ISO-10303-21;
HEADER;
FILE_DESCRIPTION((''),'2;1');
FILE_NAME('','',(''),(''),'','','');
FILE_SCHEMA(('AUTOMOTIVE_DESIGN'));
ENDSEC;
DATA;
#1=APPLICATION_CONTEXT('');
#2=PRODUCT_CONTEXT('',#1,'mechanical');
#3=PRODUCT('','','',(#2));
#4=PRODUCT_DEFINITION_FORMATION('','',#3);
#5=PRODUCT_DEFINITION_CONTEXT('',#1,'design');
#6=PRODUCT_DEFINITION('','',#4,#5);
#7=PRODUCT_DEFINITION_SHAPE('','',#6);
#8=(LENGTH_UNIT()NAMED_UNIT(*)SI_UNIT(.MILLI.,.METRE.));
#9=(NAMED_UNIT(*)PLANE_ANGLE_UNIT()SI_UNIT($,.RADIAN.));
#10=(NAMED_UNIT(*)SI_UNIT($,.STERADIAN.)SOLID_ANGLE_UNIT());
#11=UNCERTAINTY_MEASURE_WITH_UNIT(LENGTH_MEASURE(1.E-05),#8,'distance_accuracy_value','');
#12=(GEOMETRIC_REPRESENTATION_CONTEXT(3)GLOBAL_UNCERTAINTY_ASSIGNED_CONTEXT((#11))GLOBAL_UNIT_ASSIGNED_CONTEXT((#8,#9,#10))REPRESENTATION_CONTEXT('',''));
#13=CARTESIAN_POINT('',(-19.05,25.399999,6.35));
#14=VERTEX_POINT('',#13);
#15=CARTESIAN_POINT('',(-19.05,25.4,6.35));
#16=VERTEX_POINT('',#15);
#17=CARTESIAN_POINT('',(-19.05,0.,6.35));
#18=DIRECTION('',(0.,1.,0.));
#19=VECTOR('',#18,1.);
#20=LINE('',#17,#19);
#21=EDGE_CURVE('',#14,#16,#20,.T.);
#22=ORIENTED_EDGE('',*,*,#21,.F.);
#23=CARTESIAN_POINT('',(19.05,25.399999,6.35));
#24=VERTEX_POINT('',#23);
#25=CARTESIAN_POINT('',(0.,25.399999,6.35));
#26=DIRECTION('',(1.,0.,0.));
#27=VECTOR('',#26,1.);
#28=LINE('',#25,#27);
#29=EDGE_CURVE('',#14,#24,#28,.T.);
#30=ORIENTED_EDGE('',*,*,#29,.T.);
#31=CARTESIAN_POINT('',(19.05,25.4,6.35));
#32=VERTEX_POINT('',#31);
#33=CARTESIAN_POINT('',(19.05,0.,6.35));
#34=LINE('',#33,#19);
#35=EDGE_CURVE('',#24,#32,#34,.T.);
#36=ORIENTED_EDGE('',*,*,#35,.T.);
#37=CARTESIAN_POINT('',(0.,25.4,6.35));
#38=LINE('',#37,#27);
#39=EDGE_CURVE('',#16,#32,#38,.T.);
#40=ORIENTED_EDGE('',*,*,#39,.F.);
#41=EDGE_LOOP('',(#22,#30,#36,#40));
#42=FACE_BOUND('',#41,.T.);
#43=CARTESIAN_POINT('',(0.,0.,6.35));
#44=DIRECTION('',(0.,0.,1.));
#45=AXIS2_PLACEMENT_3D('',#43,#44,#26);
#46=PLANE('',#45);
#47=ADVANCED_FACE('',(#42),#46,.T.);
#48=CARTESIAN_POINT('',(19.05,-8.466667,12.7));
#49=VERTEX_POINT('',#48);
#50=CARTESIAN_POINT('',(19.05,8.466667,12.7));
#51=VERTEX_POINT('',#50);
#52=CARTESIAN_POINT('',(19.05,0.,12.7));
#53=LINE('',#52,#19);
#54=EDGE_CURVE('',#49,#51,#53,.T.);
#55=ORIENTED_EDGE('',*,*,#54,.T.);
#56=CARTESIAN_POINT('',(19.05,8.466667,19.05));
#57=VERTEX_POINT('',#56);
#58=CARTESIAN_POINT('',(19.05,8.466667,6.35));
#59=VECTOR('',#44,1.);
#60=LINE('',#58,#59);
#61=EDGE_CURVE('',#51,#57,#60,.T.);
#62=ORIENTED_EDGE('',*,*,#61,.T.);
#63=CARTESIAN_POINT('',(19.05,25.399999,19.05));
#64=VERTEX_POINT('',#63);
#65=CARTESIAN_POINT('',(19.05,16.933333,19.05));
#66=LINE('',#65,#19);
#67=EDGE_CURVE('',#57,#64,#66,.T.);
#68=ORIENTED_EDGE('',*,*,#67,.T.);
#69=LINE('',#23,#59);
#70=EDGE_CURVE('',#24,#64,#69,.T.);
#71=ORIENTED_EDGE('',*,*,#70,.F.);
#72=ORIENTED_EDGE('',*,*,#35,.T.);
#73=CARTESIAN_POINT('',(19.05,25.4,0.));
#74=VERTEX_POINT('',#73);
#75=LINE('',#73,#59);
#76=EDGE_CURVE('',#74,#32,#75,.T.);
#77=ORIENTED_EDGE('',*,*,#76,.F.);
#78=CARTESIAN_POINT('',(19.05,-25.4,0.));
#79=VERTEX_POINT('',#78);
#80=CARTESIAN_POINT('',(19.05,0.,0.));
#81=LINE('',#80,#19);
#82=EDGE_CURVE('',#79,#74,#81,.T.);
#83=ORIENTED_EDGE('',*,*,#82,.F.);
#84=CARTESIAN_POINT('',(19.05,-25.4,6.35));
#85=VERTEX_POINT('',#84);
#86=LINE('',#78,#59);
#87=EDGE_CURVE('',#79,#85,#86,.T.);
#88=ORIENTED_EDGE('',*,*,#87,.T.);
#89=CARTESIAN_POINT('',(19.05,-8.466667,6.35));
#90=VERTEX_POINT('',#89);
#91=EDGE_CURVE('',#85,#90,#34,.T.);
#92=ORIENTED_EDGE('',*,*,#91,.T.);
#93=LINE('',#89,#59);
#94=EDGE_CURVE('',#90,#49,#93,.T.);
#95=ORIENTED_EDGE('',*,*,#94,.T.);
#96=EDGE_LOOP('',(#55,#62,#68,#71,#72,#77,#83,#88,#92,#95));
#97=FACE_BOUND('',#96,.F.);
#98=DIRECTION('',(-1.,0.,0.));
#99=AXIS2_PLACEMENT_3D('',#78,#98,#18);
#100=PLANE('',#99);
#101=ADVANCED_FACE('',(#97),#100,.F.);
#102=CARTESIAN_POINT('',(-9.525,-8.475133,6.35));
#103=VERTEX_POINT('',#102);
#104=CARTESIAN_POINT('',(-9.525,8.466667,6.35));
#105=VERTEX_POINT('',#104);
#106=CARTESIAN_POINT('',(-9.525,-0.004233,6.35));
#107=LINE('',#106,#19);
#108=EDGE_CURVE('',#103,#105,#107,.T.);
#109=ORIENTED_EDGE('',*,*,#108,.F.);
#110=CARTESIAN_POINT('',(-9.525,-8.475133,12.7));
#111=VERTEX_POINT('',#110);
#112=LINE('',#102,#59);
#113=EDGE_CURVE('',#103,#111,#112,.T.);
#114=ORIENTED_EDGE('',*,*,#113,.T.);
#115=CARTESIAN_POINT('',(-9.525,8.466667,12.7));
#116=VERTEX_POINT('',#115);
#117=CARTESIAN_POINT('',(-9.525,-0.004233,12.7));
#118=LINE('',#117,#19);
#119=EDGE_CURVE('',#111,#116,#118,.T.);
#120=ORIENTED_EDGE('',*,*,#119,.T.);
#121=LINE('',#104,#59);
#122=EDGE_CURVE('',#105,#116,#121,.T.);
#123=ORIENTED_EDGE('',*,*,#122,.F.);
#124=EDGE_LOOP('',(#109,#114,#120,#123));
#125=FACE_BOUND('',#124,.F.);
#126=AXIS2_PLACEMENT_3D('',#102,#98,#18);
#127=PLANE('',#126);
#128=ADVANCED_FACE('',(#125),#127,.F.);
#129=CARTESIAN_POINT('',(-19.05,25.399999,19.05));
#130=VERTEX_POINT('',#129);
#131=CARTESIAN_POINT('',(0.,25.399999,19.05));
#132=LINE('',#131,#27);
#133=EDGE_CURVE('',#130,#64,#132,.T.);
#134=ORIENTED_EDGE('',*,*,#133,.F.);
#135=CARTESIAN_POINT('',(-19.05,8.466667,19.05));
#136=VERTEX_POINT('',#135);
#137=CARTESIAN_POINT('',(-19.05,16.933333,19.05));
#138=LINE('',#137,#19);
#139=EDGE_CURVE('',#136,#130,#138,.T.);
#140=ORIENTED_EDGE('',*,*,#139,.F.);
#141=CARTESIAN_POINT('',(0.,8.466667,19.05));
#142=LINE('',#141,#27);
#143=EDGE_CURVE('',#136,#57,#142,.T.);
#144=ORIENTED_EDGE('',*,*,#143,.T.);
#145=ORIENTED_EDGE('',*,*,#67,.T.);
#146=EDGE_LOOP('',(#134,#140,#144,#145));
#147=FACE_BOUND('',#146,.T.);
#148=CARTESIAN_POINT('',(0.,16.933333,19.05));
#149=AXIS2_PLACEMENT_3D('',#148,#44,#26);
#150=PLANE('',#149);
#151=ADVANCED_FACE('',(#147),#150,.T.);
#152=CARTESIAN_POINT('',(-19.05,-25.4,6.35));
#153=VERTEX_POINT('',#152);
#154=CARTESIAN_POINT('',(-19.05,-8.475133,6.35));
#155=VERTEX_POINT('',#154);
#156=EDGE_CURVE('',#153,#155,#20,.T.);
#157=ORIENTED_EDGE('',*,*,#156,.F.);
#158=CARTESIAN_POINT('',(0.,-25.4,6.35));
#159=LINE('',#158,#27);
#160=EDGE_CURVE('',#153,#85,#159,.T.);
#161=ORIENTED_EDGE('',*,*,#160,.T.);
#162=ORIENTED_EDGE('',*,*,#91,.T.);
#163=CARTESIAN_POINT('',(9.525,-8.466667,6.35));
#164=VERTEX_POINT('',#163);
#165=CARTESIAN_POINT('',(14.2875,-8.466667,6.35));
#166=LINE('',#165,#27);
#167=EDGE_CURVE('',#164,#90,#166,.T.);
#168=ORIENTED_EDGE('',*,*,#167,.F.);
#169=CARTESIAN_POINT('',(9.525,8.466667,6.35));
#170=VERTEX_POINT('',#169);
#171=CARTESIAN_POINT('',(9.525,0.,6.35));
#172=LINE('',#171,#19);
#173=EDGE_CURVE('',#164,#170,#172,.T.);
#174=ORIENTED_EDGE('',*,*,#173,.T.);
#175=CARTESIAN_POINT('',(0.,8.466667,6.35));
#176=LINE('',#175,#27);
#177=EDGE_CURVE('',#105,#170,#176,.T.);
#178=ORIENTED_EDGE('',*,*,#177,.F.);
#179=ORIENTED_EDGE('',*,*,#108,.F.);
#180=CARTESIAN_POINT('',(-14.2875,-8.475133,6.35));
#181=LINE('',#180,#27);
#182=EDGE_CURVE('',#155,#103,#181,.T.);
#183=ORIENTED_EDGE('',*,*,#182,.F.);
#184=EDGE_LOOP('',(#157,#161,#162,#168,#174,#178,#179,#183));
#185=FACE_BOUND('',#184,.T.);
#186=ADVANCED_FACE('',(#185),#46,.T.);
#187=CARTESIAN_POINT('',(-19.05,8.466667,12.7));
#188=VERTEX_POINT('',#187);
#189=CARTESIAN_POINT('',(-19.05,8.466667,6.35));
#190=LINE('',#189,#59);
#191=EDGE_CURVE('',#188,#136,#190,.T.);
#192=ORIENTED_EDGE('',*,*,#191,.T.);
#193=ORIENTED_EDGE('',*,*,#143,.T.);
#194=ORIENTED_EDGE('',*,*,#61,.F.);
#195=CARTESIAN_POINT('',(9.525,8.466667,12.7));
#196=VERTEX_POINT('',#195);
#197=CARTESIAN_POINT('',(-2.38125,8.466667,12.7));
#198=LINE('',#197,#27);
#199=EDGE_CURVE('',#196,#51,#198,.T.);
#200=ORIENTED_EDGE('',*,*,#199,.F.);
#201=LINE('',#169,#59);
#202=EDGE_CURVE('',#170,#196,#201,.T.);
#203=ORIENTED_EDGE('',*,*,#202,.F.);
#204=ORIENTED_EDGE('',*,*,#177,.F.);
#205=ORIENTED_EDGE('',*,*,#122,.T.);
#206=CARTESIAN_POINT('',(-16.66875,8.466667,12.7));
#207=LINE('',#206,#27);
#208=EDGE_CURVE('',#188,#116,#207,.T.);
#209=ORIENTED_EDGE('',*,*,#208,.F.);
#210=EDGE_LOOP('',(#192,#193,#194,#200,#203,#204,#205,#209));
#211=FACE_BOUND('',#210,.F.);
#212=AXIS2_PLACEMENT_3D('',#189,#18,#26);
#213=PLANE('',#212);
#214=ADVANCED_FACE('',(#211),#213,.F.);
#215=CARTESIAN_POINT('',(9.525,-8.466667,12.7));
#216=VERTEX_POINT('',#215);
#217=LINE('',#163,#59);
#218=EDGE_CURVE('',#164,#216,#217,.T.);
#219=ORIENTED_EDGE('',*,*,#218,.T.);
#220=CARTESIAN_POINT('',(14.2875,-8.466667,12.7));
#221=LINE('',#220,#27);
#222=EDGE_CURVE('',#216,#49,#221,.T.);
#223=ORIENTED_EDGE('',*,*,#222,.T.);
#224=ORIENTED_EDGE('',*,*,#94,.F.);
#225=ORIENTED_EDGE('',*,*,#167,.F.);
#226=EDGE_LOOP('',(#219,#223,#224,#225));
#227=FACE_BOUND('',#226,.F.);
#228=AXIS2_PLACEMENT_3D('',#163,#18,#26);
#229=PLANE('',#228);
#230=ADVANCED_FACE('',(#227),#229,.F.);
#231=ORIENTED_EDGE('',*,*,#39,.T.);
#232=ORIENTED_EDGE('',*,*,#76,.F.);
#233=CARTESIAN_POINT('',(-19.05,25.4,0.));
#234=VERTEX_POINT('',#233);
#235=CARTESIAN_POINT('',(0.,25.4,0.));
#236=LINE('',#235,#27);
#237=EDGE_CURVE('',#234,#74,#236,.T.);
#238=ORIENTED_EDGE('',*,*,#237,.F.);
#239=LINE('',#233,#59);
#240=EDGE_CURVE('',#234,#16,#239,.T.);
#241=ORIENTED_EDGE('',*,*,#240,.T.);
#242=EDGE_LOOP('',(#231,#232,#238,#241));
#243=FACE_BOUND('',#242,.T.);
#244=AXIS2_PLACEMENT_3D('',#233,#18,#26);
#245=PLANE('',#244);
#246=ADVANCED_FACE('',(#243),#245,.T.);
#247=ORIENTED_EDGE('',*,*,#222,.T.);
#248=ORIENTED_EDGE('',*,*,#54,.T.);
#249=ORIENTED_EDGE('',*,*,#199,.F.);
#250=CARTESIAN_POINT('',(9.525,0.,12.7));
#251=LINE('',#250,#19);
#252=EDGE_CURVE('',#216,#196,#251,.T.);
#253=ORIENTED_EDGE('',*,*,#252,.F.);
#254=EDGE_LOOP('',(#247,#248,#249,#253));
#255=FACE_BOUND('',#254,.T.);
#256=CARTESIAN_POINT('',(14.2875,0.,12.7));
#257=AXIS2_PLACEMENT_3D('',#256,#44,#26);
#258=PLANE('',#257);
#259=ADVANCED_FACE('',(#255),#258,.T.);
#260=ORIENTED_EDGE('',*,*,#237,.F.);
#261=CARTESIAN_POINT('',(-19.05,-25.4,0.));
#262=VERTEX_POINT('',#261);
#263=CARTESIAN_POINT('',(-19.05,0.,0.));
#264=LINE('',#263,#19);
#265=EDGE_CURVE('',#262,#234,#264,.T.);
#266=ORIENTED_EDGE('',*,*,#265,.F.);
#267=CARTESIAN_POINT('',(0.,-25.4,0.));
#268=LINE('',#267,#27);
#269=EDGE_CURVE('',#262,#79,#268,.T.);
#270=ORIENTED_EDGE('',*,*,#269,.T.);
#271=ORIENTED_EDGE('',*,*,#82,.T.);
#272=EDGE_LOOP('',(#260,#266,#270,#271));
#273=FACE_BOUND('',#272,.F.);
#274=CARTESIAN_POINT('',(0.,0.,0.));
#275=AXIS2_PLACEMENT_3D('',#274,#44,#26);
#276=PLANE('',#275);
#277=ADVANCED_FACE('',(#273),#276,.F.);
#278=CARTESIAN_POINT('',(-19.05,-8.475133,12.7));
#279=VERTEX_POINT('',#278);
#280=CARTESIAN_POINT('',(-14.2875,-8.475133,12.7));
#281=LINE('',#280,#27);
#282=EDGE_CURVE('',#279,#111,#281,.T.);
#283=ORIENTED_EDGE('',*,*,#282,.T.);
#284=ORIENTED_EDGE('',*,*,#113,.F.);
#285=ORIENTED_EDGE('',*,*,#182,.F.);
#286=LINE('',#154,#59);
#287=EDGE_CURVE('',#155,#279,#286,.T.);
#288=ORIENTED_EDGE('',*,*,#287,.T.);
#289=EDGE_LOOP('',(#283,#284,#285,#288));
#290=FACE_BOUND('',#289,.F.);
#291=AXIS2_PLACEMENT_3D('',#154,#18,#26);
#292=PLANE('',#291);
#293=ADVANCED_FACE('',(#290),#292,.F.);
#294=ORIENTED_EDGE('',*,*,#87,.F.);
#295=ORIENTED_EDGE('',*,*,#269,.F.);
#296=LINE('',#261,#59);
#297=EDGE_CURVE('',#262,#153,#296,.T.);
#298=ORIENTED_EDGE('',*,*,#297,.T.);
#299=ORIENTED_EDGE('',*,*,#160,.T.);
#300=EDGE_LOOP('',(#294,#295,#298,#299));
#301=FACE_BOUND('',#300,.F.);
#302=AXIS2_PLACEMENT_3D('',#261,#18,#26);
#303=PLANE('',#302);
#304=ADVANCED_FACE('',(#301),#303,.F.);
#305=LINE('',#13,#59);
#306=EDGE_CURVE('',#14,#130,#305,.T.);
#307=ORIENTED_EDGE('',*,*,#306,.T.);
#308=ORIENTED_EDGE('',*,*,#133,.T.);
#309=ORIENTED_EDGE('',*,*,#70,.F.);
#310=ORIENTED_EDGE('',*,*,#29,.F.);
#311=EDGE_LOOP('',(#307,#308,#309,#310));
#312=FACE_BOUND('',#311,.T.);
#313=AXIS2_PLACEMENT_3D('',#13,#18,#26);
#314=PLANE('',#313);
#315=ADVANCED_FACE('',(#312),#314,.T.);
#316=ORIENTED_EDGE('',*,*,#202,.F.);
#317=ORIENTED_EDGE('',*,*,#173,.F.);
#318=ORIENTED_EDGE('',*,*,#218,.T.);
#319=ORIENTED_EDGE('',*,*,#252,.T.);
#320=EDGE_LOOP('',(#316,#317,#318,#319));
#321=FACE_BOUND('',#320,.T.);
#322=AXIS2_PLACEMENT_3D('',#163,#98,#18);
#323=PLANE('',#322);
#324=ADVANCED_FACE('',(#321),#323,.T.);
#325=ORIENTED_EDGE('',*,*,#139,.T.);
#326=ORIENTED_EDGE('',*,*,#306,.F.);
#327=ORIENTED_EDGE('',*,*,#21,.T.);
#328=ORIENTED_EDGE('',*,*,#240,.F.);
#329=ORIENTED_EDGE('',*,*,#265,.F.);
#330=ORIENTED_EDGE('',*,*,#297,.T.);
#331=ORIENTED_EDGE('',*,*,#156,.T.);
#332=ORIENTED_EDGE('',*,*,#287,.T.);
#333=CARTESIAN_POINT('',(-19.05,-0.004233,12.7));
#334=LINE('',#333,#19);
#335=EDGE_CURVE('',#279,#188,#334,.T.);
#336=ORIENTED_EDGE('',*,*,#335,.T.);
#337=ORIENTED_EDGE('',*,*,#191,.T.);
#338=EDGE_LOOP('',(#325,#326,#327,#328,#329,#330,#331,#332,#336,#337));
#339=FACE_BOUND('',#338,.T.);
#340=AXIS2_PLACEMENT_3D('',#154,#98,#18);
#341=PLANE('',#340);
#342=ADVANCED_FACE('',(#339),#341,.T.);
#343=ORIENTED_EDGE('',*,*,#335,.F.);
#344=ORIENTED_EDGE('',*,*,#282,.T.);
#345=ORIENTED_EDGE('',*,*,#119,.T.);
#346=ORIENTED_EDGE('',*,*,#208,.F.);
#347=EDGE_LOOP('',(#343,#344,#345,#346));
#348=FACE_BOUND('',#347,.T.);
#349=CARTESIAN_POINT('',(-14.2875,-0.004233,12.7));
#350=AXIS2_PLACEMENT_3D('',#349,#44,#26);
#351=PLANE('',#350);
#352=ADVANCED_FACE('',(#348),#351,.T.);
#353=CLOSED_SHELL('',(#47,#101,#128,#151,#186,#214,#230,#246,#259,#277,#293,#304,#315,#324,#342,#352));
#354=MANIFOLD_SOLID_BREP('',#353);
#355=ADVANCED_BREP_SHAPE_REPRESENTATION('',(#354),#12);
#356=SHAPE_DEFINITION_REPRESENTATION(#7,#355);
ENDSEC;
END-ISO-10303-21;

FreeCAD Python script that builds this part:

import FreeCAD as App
import Part
import Sketcher
from FreeCAD import Vector
Q = App.Units.Quantity

doc = App.newDocument("Part")
body = doc.addObject("PartDesign::Body", "Body")

# Sketch on XY plane
sketch1 = body.newObject("Sketcher::SketchObject", "Sketch")
sketch1.AttachmentSupport = (doc.getObject("XY_Plane"), [""])
sketch1.MapMode = "FlatFace"
sketch1.addGeometry([
    Part.LineSegment(Vector(-19.05, 25.4, 0), Vector(-19.05, -25.4, 0)),
    Part.LineSegment(Vector(-19.05, -25.4, 0), Vector(19.05, -25.4, 0)),
    Part.LineSegment(Vector(19.05, -25.4, 0), Vector(19.05, 25.4, 0)),
    Part.LineSegment(Vector(19.05, 25.4, 0), Vector(-19.05, 25.4, 0)),
], False)
sketch1.addConstraint([
    Sketcher.Constraint("Coincident", 0, 2, 1, 1),
    Sketcher.Constraint("Coincident", 1, 2, 2, 1),
    Sketcher.Constraint("Coincident", 2, 2, 3, 1),
    Sketcher.Constraint("Coincident", 3, 2, 0, 1),
    Sketcher.Constraint("Vertical", 0),
    Sketcher.Constraint("Horizontal", 1),
    Sketcher.Constraint("Vertical", 2),
    Sketcher.Constraint("Horizontal", 3),
    Sketcher.Constraint("Symmetric", 0, 2, 2, 2, -1, 1),
    Sketcher.Constraint("DistanceY", 0, 2, 0, 1, Q("2 in")),
    Sketcher.Constraint("DistanceX", 1, 1, 1, 2, Q("1.5 in")),
])
pad1 = body.newObject("PartDesign::Pad", "Pad")
pad1.Profile = sketch1
pad1.Length = Q("0.25 in")

# Sketch on XY plane
sketch2 = body.newObject("Sketcher::SketchObject", "Sketch001")
sketch2.AttachmentSupport = (doc.getObject("XY_Plane"), [""])
sketch2.MapMode = "FlatFace"
sketch2.AttachmentOffset = App.Placement(Vector(0, 0, 0.25 * 25.4), App.Rotation())
sketch2.addGeometry([
    Part.LineSegment(Vector(-19.05, 25.399999, 0), Vector(-19.05, 8.466667, 0)),
    Part.LineSegment(Vector(-19.05, 8.466667, 0), Vector(19.05, 8.466667, 0)),
    Part.LineSegment(Vector(19.05, 8.466667, 0), Vector(19.05, 25.399999, 0)),
    Part.LineSegment(Vector(19.05, 25.399999, 0), Vector(-19.05, 25.399999, 0)),
], False)
sketch2.addConstraint([
    Sketcher.Constraint("Coincident", 0, 2, 1, 1),
    Sketcher.Constraint("Coincident", 1, 2, 2, 1),
    Sketcher.Constraint("Coincident", 2, 2, 3, 1),
    Sketcher.Constraint("Coincident", 3, 2, 0, 1),
    Sketcher.Constraint("Vertical", 0),
    Sketcher.Constraint("Horizontal", 1),
    Sketcher.Constraint("Vertical", 2),
    Sketcher.Constraint("Horizontal", 3),
    Sketcher.Constraint("DistanceX", 1, 1, 1, 2, Q("1.5 in")),
    Sketcher.Constraint("DistanceY", -1, 1, 2, 2, Q("1 in")),
    Sketcher.Constraint("DistanceX", 0, 2, -1, 1, Q("0.75 in")),
    Sketcher.Constraint("DistanceY", 0, 2, 0, 1, 16.933333),
])
pad2 = body.newObject("PartDesign::Pad", "Pad001")
pad2.Profile = sketch2
pad2.Length = Q("0.5 in")

# Sketch on XY plane
sketch3 = body.newObject("Sketcher::SketchObject", "Sketch002")
sketch3.AttachmentSupport = (doc.getObject("XY_Plane"), [""])
sketch3.MapMode = "FlatFace"
sketch3.AttachmentOffset = App.Placement(Vector(0, 0, 0.25 * 25.4), App.Rotation())
sketch3.addGeometry([
    Part.LineSegment(Vector(-19.05, 8.466667, 0), Vector(-19.05, -8.475133, 0)),  # 0
    Part.LineSegment(Vector(-19.05, -8.475133, 0), Vector(-9.525, -8.475133, 0)),  # 1
    Part.LineSegment(Vector(-9.525, -8.475133, 0), Vector(-9.525, 8.466667, 0)),  # 2
    Part.LineSegment(Vector(-9.525, 8.466667, 0), Vector(-19.05, 8.466667, 0)),  # 3
    Part.LineSegment(Vector(9.525, 8.466667, 0), Vector(9.525, -8.466667, 0)),  # 4
    Part.LineSegment(Vector(9.525, -8.466667, 0), Vector(19.05, -8.466667, 0)),  # 5
    Part.LineSegment(Vector(19.05, -8.466667, 0), Vector(19.05, 8.466667, 0)),  # 6
    Part.LineSegment(Vector(19.05, 8.466667, 0), Vector(9.525, 8.466667, 0)),  # 7
], False)
sketch3.addConstraint([
    Sketcher.Constraint("Coincident", 0, 2, 1, 1),
    Sketcher.Constraint("Coincident", 1, 2, 2, 1),
    Sketcher.Constraint("Coincident", 2, 2, 3, 1),
    Sketcher.Constraint("Coincident", 3, 2, 0, 1),
    Sketcher.Constraint("Coincident", 4, 2, 5, 1),
    Sketcher.Constraint("Coincident", 5, 2, 6, 1),
    Sketcher.Constraint("Coincident", 6, 2, 7, 1),
    Sketcher.Constraint("Coincident", 7, 2, 4, 1),
    Sketcher.Constraint("Vertical", 0),
    Sketcher.Constraint("Horizontal", 1),
    Sketcher.Constraint("Vertical", 2),
    Sketcher.Constraint("Horizontal", 3),
    Sketcher.Constraint("Vertical", 4),
    Sketcher.Constraint("Horizontal", 5),
    Sketcher.Constraint("Vertical", 6),
    Sketcher.Constraint("Horizontal", 7),
    Sketcher.Constraint("Symmetric", 2, 2, 4, 2, -1, 1),
    Sketcher.Constraint("Symmetric", 3, 2, 6, 2, -2),
    Sketcher.Constraint("DistanceX", 0, 2, 5, 2, Q("1.5 in")),
    Sketcher.Constraint("DistanceX", 1, 1, 1, 2, Q("0.375 in")),
    Sketcher.Constraint("DistanceY", 0, 2, 0, 1, Q("0.667 in")),
    Sketcher.Constraint("DistanceY", 4, 2, 4, 1, 16.933334),
])
pad3 = body.newObject("PartDesign::Pad", "Pad002")
pad3.Profile = sketch3
pad3.Length = Q("0.25 in")

doc.recompute()
